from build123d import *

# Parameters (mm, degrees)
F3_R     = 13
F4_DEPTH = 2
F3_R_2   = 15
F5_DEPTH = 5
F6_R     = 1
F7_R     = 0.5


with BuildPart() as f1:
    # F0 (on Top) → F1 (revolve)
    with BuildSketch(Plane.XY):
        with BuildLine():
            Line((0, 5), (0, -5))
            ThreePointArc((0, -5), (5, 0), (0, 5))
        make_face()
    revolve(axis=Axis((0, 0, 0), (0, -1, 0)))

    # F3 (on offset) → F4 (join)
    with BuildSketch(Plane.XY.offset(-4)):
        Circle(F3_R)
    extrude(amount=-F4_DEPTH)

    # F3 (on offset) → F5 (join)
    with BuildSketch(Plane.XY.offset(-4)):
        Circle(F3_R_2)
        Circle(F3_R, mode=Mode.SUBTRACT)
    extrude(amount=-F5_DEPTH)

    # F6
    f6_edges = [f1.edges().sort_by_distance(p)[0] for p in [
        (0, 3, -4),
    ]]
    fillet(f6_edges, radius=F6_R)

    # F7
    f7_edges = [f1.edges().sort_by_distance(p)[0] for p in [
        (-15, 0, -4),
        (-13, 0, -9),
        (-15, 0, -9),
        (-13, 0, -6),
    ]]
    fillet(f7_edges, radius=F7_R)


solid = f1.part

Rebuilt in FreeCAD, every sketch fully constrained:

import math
import FreeCAD as App
import Part
import Sketcher

V = App.Vector


def edges_at(feature, points):
    """Names of the edges that pass closest to the given points."""
    edges = feature.Shape.Edges
    near = lambda p: min(range(len(edges)), key=lambda i: edges[i].distToShape(Part.Vertex(*p))[0])
    return sorted({f"Edge{near(p) + 1}" for p in points})

doc = App.newDocument("Part")
params = doc.addObject("Spreadsheet::Sheet", "Params")
for row, (alias, value) in enumerate([
    ("sketch1_radius", "5 mm"),
    ("revolution_angle", "360 deg"),
    ("sketch2_diameter", "26 mm"),
    ("pad1_length", "2 mm"),
    ("sketch3_diameter", "30 mm"),
    ("sketch3_diameter2", "26 mm"),
    ("pad2_length", "5 mm"),
    ("fillet_radius", "1 mm"),
    ("fillet2_radius", "0.5 mm"),
], start=1):
    params.set(f"A{row}", alias)
    params.set(f"B{row}", "=" + value)
    params.setAlias(f"B{row}", alias)

body = doc.addObject("PartDesign::Body", "Body")

sketch1 = doc.addObject("Sketcher::SketchObject", "Sketch")
body.addObject(sketch1)
sketch1.AttachmentSupport = (doc.XY_Plane, [""])
sketch1.MapMode = "FlatFace"
sketch1.addGeometry([
    Part.LineSegment(V(0, 5, 0), V(0, -5, 0)),
    Part.ArcOfCircle(Part.Circle(V(0, 0, 0), V(0, 0, 1), 5), math.radians(-90), math.radians(90)),
], False)
sketch1.addConstraint([
    Sketcher.Constraint("Coincident", 0, 1, 1, 2),
    Sketcher.Constraint("Coincident", 1, 1, 0, 2),
    Sketcher.Constraint("Vertical", 0),
    Sketcher.Constraint("Coincident", 1, 3, -1, 1),
    Sketcher.Constraint("PointOnObject", 0, 1, -2),
    Sketcher.Constraint("Radius", 1, 5.0),
])
sketch1.setExpression("Constraints[5]", "Params.sketch1_radius")
revolution = doc.addObject("PartDesign::Revolution", "Revolution")
body.addObject(revolution)
revolution.Profile = sketch1
revolution.ReferenceAxis = (sketch1, ["V_Axis"])
revolution.setExpression("Angle", "Params.revolution_angle")

sketch2 = doc.addObject("Sketcher::SketchObject", "Sketch001")
body.addObject(sketch2)
sketch2.AttachmentSupport = (doc.XY_Plane, [""])
sketch2.MapMode = "FlatFace"
sketch2.AttachmentOffset = App.Placement(V(0, 0, -4), App.Rotation())
sketch2.addGeometry(Part.Circle(V(0, 0, 0), V(0, 0, 1), 13), False)
sketch2.addConstraint([
    Sketcher.Constraint("Coincident", 0, 3, -1, 1),
    Sketcher.Constraint("Diameter", 0, 26.0),
])
sketch2.setExpression("Constraints[1]", "Params.sketch2_diameter")
pad1 = doc.addObject("PartDesign::Pad", "Pad")
body.addObject(pad1)
pad1.Profile = sketch2
pad1.setExpression("Length", "Params.pad1_length")
pad1.Reversed = True

sketch3 = doc.addObject("Sketcher::SketchObject", "Sketch002")
body.addObject(sketch3)
sketch3.AttachmentSupport = (doc.XY_Plane, [""])
sketch3.MapMode = "FlatFace"
sketch3.AttachmentOffset = App.Placement(V(0, 0, -4), App.Rotation())
sketch3.addGeometry([
    Part.Circle(V(0, 0, 0), V(0, 0, 1), 15),
    Part.Circle(V(0, 0, 0), V(0, 0, 1), 13),
], False)
sketch3.addConstraint([
    Sketcher.Constraint("Coincident", 0, 3, -1, 1),
    Sketcher.Constraint("Coincident", 1, 3, -1, 1),
    Sketcher.Constraint("Diameter", 0, 30.0),
    Sketcher.Constraint("Diameter", 1, 26.0),
])
sketch3.setExpression("Constraints[2]", "Params.sketch3_diameter")
sketch3.setExpression("Constraints[3]", "Params.sketch3_diameter2")
pad2 = doc.addObject("PartDesign::Pad", "Pad001")
body.addObject(pad2)
pad2.Profile = sketch3
pad2.setExpression("Length", "Params.pad2_length")
pad2.Reversed = True
doc.recompute()

fillet = doc.addObject("PartDesign::Fillet", "Fillet")
body.addObject(fillet)
fillet.Base = (pad2, edges_at(pad2, [(0, 3, -4)]))
fillet.setExpression("Radius", "Params.fillet_radius")
doc.recompute()

fillet2 = doc.addObject("PartDesign::Fillet", "Fillet001")
body.addObject(fillet2)
fillet2.Base = (fillet, edges_at(fillet, [
    (-15, 0, -4),
    (-13, 0, -9),
    (-15, 0, -9),
    (-13, 0, -6),
]))
fillet2.setExpression("Radius", "Params.fillet2_radius")

doc.recompute()
